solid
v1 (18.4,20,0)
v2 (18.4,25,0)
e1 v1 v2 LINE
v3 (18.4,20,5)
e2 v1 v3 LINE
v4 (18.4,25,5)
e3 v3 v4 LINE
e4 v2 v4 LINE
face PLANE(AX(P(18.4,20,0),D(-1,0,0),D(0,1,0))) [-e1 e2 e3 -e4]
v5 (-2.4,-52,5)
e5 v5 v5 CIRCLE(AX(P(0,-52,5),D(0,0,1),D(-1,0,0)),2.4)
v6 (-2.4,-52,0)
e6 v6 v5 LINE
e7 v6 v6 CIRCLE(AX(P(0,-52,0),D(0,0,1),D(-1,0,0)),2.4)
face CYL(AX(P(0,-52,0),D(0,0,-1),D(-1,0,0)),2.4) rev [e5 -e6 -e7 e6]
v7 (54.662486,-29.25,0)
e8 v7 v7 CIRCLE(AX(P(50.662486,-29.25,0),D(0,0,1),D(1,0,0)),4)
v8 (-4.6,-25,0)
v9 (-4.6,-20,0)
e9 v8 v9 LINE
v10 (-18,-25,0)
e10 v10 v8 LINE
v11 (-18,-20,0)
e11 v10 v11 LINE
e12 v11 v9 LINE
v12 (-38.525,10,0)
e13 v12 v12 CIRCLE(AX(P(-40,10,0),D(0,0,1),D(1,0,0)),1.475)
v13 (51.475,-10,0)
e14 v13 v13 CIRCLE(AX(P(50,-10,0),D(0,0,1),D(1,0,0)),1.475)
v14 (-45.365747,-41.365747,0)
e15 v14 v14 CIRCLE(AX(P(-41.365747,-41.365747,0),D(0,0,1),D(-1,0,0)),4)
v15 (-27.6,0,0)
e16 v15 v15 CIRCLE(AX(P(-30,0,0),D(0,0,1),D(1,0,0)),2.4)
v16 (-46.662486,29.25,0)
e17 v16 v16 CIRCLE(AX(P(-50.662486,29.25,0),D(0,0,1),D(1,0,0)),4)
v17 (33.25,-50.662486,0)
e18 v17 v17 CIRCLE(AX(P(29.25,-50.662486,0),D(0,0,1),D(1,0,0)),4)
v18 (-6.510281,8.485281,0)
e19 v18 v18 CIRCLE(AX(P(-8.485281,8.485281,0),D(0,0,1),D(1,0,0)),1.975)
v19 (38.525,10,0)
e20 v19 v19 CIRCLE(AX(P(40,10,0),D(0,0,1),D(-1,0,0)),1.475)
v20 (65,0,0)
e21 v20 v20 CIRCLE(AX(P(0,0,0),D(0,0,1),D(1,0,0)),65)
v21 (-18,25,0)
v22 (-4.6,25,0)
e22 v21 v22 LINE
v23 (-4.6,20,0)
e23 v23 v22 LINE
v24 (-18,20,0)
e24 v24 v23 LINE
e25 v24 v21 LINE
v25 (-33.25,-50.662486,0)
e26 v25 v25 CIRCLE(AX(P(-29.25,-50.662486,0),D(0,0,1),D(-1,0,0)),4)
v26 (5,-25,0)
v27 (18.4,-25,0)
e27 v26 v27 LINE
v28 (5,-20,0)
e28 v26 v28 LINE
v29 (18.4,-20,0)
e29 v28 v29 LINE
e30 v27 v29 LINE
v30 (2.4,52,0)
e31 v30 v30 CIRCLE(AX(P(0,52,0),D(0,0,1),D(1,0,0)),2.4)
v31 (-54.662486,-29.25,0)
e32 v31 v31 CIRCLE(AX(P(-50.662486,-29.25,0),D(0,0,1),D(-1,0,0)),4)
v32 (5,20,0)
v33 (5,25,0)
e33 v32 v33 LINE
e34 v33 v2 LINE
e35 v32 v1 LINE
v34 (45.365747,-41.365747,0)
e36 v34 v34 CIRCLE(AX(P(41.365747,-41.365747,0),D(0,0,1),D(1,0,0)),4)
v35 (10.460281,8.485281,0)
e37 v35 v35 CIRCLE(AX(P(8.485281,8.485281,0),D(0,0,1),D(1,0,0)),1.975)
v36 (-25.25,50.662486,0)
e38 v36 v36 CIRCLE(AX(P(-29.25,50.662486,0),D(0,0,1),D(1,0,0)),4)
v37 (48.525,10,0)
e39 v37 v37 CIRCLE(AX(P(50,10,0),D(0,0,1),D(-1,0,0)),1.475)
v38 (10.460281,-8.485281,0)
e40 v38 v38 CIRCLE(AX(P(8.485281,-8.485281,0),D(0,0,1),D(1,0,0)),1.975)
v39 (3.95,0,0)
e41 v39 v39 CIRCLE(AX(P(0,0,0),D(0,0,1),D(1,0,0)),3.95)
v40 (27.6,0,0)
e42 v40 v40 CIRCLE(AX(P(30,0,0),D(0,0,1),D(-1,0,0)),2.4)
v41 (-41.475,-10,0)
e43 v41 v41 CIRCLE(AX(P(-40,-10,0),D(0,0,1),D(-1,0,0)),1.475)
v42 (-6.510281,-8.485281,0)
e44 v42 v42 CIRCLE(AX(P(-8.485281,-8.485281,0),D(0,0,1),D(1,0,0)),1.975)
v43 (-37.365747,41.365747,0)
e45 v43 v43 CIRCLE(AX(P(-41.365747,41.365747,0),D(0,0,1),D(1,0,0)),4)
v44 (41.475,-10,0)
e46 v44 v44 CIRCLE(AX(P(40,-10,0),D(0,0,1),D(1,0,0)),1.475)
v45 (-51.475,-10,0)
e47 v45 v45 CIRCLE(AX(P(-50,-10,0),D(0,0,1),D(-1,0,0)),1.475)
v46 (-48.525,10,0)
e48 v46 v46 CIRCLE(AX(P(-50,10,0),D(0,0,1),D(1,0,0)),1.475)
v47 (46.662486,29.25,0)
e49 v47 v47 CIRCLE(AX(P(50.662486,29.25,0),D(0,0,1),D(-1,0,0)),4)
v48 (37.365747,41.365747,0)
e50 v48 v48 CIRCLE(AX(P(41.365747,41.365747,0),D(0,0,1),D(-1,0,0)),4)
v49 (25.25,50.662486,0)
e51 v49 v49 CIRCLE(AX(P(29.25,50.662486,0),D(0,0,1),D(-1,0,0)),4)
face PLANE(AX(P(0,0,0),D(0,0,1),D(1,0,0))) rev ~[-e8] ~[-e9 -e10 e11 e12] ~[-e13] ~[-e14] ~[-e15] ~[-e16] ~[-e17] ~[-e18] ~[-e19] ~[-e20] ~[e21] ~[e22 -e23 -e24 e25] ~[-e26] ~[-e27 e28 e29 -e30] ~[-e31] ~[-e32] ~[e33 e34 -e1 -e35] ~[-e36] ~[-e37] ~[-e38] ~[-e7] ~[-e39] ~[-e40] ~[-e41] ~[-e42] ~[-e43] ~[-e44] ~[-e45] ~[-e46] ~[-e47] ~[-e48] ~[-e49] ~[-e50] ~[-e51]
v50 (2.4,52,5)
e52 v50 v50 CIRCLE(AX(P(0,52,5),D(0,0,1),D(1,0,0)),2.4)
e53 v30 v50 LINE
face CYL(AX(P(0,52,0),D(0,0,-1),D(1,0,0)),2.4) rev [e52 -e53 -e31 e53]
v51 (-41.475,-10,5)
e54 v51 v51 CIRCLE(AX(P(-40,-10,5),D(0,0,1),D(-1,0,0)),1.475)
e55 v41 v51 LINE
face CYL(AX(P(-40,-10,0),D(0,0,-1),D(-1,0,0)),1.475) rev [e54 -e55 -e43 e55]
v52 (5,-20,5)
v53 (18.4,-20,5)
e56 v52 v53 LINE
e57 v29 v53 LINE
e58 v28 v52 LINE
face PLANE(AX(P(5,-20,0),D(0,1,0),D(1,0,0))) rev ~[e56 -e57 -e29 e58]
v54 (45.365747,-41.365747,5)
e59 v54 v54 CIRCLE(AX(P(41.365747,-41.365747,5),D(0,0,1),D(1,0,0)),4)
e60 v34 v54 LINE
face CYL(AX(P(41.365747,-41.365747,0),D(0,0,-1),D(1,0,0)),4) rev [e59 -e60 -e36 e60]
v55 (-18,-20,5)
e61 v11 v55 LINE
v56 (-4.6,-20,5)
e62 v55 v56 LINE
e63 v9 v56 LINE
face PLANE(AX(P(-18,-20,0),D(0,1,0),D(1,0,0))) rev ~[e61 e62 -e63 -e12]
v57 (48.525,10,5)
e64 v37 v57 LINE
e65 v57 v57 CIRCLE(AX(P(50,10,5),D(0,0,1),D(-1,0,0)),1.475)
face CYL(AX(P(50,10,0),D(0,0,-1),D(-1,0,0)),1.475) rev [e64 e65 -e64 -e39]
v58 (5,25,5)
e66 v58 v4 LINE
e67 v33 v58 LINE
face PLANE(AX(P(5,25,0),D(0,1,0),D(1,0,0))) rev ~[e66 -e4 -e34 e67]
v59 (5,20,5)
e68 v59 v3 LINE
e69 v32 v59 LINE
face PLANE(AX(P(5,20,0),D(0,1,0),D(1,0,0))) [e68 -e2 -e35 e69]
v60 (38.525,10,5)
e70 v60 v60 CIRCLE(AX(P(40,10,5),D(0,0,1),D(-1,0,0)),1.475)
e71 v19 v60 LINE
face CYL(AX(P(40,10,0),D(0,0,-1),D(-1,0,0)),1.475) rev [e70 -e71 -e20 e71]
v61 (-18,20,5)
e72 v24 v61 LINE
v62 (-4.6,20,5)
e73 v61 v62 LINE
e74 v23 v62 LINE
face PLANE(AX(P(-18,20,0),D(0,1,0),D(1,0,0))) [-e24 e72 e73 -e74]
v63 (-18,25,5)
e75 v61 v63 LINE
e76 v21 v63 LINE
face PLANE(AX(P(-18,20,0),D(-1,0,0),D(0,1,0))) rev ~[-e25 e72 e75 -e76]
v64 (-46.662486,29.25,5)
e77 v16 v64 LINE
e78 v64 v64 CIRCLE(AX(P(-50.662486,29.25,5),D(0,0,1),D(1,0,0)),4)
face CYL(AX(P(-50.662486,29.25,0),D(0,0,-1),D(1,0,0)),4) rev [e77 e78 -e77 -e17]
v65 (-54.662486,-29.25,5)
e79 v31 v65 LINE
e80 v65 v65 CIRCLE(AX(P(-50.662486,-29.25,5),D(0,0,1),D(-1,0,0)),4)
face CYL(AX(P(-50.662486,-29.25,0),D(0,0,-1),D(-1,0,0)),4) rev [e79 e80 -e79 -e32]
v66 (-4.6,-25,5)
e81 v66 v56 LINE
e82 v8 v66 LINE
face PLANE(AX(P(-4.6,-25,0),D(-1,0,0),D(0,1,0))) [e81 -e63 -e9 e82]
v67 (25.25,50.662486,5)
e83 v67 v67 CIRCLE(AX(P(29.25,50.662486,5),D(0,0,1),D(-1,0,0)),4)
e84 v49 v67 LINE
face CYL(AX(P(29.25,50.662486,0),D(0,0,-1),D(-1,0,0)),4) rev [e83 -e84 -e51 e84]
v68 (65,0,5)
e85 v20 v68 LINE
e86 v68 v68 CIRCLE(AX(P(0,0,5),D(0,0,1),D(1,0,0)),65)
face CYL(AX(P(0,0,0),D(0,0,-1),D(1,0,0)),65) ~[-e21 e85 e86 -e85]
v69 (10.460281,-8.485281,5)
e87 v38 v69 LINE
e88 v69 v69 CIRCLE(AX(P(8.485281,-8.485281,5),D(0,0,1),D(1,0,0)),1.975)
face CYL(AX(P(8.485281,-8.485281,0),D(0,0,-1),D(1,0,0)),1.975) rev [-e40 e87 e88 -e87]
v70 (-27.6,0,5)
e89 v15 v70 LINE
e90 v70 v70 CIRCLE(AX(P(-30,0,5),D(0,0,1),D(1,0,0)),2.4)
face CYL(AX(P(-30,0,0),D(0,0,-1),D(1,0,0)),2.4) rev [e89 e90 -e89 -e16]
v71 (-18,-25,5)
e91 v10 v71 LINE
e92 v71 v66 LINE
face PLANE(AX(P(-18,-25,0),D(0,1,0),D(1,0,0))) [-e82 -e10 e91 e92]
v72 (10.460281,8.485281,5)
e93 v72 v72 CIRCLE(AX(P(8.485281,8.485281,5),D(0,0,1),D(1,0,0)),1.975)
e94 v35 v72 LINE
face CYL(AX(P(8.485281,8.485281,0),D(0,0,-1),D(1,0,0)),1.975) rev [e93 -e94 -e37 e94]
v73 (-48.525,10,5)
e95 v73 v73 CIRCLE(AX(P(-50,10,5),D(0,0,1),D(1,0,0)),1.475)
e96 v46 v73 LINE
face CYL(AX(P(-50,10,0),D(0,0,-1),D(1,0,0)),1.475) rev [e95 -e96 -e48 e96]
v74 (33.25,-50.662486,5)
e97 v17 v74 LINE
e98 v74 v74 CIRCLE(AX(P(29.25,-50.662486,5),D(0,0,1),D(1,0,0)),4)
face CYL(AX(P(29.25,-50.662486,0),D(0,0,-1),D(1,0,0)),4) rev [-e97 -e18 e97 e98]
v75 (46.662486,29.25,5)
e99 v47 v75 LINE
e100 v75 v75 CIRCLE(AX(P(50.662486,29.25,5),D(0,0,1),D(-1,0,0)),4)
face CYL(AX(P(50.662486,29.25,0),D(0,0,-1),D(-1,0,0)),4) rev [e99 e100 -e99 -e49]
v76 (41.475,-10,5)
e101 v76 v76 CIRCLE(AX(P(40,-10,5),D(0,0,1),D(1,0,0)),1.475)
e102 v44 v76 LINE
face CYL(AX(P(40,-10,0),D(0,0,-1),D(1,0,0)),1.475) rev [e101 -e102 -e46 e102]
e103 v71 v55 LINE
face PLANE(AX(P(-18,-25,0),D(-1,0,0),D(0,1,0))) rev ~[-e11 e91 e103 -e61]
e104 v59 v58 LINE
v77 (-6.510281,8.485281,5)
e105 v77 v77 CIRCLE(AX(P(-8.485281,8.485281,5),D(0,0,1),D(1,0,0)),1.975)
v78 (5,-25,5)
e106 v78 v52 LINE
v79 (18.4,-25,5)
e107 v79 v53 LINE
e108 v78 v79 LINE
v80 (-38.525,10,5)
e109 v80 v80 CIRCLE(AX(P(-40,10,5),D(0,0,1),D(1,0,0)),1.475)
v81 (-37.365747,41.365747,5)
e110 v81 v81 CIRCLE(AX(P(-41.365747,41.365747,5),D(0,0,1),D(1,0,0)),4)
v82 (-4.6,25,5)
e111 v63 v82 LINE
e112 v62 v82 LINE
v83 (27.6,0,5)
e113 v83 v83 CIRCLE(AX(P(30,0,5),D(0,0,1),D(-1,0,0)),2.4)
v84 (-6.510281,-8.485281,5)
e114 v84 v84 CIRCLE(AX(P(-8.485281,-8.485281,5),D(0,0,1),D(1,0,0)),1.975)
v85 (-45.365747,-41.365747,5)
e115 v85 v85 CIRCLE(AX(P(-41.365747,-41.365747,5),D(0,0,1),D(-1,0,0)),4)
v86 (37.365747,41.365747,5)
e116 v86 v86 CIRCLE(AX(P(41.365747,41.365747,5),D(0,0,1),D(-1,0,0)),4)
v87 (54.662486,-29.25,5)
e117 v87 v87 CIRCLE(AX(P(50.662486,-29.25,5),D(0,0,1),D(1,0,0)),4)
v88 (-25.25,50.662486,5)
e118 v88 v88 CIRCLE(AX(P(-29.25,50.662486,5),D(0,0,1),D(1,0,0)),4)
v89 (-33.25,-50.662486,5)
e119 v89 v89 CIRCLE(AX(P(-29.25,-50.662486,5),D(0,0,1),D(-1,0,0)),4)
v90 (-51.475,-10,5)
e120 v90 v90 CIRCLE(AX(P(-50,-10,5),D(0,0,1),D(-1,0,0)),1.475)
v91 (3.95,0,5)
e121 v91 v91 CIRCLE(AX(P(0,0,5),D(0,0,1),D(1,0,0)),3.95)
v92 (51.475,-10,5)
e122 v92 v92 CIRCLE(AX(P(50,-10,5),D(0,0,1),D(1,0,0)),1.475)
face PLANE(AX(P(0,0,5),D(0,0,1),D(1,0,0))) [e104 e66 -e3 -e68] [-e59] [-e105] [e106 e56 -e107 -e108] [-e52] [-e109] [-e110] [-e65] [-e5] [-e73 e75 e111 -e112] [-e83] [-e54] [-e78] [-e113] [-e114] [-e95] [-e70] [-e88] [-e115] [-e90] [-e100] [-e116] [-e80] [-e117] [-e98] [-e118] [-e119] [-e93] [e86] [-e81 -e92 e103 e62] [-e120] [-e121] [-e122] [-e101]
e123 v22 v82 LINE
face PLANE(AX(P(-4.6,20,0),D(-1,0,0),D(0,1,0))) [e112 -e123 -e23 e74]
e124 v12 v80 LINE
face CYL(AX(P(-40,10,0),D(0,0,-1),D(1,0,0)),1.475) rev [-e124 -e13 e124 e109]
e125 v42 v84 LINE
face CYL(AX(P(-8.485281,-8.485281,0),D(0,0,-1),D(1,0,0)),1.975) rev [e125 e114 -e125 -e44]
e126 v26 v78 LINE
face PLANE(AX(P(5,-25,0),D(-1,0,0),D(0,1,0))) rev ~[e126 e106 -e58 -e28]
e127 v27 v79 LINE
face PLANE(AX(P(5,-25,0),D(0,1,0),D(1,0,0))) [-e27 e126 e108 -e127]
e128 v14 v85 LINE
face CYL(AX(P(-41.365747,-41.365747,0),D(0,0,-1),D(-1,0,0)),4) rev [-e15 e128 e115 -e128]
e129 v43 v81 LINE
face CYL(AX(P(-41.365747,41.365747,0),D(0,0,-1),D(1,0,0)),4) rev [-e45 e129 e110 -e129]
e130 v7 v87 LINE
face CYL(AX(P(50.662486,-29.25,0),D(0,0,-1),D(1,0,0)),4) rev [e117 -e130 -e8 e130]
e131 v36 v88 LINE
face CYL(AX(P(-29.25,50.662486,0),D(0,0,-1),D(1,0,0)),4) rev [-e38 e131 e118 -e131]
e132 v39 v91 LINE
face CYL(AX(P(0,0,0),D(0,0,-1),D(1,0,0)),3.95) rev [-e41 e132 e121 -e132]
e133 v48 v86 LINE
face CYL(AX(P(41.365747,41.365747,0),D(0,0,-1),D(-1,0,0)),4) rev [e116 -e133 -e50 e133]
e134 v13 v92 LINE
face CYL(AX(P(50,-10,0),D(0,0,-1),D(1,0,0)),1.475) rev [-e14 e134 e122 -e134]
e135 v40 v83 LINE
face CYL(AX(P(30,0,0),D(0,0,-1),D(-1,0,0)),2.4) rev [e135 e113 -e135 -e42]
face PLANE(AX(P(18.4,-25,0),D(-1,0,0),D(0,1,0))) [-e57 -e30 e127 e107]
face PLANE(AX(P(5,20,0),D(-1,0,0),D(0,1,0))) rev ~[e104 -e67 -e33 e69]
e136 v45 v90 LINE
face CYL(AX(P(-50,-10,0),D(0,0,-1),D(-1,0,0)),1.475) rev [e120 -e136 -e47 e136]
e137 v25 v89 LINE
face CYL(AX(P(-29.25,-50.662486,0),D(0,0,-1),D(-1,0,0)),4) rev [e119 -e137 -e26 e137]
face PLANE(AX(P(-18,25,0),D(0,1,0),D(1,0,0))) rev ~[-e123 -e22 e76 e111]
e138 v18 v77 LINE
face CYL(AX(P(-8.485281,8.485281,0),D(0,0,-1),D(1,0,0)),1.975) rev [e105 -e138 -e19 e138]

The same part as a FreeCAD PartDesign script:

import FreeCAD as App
import Part
import Sketcher

doc = App.newDocument("Part")
params = doc.addObject("Spreadsheet::Sheet", "Params")
for row, (alias, value) in enumerate([
    ("sketch1_diameter", "130 mm"),
    ("sketch1_diameter2", "8 mm"),
    ("sketch1_diameter3", "4.8 mm"),
    ("sketch1_diameter4", "7.9 mm"),
    ("sketch1_diameter5", "2.95 mm"),
    ("pad1_length", "5 mm"),
], start=1):
    params.set(f"A{row}", alias)
    params.set(f"B{row}", "=" + value)
    params.setAlias(f"B{row}", alias)

body = doc.addObject("PartDesign::Body", "Body")

# Sketch on XY plane
sketch1 = body.newObject("Sketcher::SketchObject", "Sketch")
sketch1.AttachmentSupport = (doc.getObject("XY_Plane"), [""])
sketch1.MapMode = "FlatFace"
sketch1.addGeometry([
    Part.Circle(App.Vector(0, 0, 0), App.Vector(0, 0, 1), 65),  # 0
    Part.Circle(App.Vector(-41.4, -41.4, 0), App.Vector(0, 0, 1), 4),  # 1
    Part.Circle(App.Vector(-29.2, -50.7, 0), App.Vector(0, 0, 1), 4),  # 2
    Part.Circle(App.Vector(-50.7, -29.2, 0), App.Vector(0, 0, 1), 4),  # 3
    Part.Circle(App.Vector(-50, -10, 0), App.Vector(0, 0, 1), 1.5),  # 4
    Part.Circle(App.Vector(-40, -10, 0), App.Vector(0, 0, 1), 1.5),  # 5
    Part.LineSegment(App.Vector(-4.6, -25, 0), App.Vector(-18, -25, 0)),  # 6
    Part.LineSegment(App.Vector(-18, -25, 0), App.Vector(-18, -20, 0)),  # 7
    Part.LineSegment(App.Vector(-18, -20, 0), App.Vector(-4.6, -20, 0)),  # 8
    Part.LineSegment(App.Vector(-4.6, -20, 0), App.Vector(-4.6, -25, 0)),  # 9
    Part.Circle(App.Vector(-8.5, -8.5, 0), App.Vector(0, 0, 1), 2),  # 10
    Part.Circle(App.Vector(0, -52, 0), App.Vector(0, 0, 1), 2.4),  # 11
    Part.Circle(App.Vector(29.2, -50.7, 0), App.Vector(0, 0, 1), 4),  # 12
    Part.Circle(App.Vector(41.4, -41.4, 0), App.Vector(0, 0, 1), 4),  # 13
    Part.Circle(App.Vector(50.7, -29.2, 0), App.Vector(0, 0, 1), 4),  # 14
    Part.LineSegment(App.Vector(18.4, -25, 0), App.Vector(5, -25, 0)),  # 15
    Part.LineSegment(App.Vector(5, -25, 0), App.Vector(5, -20, 0)),  # 16
    Part.LineSegment(App.Vector(5, -20, 0), App.Vector(18.4, -20, 0)),  # 17
    Part.LineSegment(App.Vector(18.4, -20, 0), App.Vector(18.4, -25, 0)),  # 18
    Part.Circle(App.Vector(8.5, -8.5, 0), App.Vector(0, 0, 1), 2),  # 19
    Part.Circle(App.Vector(40, -10, 0), App.Vector(0, 0, 1), 1.5),  # 20
    Part.Circle(App.Vector(50, -10, 0), App.Vector(0, 0, 1), 1.5),  # 21
    Part.Circle(App.Vector(-50, 10, 0), App.Vector(0, 0, 1), 1.5),  # 22
    Part.Circle(App.Vector(-30, 0, 0), App.Vector(0, 0, 1), 2.4),  # 23
    Part.Circle(App.Vector(-40, 10, 0), App.Vector(0, 0, 1), 1.5),  # 24
    Part.Circle(App.Vector(-8.5, 8.5, 0), App.Vector(0, 0, 1), 2),  # 25
    Part.LineSegment(App.Vector(-4.6, 20, 0), App.Vector(-18, 20, 0)),  # 26
    Part.LineSegment(App.Vector(-18, 20, 0), App.Vector(-18, 25, 0)),  # 27
    Part.LineSegment(App.Vector(-18, 25, 0), App.Vector(-4.6, 25, 0)),  # 28
    Part.LineSegment(App.Vector(-4.6, 25, 0), App.Vector(-4.6, 20, 0)),  # 29
    Part.Circle(App.Vector(-50.7, 29.2, 0), App.Vector(0, 0, 1), 4),  # 30
    Part.Circle(App.Vector(-41.4, 41.4, 0), App.Vector(0, 0, 1), 4),  # 31
    Part.Circle(App.Vector(-29.2, 50.7, 0), App.Vector(0, 0, 1), 4),  # 32
    Part.Circle(App.Vector(0, 0, 0), App.Vector(0, 0, 1), 4),  # 33
    Part.Circle(App.Vector(8.5, 8.5, 0), App.Vector(0, 0, 1), 2),  # 34
    Part.LineSegment(App.Vector(18.4, 20, 0), App.Vector(5, 20, 0)),  # 35
    Part.LineSegment(App.Vector(5, 20, 0), App.Vector(5, 25, 0)),  # 36
    Part.LineSegment(App.Vector(5, 25, 0), App.Vector(18.4, 25, 0)),  # 37
    Part.LineSegment(App.Vector(18.4, 25, 0), App.Vector(18.4, 20, 0)),  # 38
    Part.Circle(App.Vector(30, 0, 0), App.Vector(0, 0, 1), 2.4),  # 39
    Part.Circle(App.Vector(40, 10, 0), App.Vector(0, 0, 1), 1.5),  # 40
    Part.Circle(App.Vector(50, 10, 0), App.Vector(0, 0, 1), 1.5),  # 41
    Part.Circle(App.Vector(0, 52, 0), App.Vector(0, 0, 1), 2.4),  # 42
    Part.Circle(App.Vector(50.7, 29.2, 0), App.Vector(0, 0, 1), 4),  # 43
    Part.Circle(App.Vector(29.2, 50.7, 0), App.Vector(0, 0, 1), 4),  # 44
    Part.Circle(App.Vector(41.4, 41.4, 0), App.Vector(0, 0, 1), 4),  # 45
], False)
sketch1.addConstraint([
    Sketcher.Constraint("Coincident", 6, 2, 7, 1),
    Sketcher.Constraint("Coincident", 7, 2, 8, 1),
    Sketcher.Constraint("Coincident", 8, 2, 9, 1),
    Sketcher.Constraint("Coincident", 9, 2, 6, 1),
    Sketcher.Constraint("Coincident", 15, 2, 16, 1),
    Sketcher.Constraint("Coincident", 16, 2, 17, 1),
    Sketcher.Constraint("Coincident", 17, 2, 18, 1),
    Sketcher.Constraint("Coincident", 18, 2, 15, 1),
    Sketcher.Constraint("Coincident", 26, 2, 27, 1),
    Sketcher.Constraint("Coincident", 27, 2, 28, 1),
    Sketcher.Constraint("Coincident", 28, 2, 29, 1),
    Sketcher.Constraint("Coincident", 29, 2, 26, 1),
    Sketcher.Constraint("Coincident", 35, 2, 36, 1),
    Sketcher.Constraint("Coincident", 36, 2, 37, 1),
    Sketcher.Constraint("Coincident", 37, 2, 38, 1),
    Sketcher.Constraint("Coincident", 38, 2, 35, 1),
    Sketcher.Constraint("Horizontal", 6),
    Sketcher.Constraint("Vertical", 7),
    Sketcher.Constraint("Horizontal", 8),
    Sketcher.Constraint("Vertical", 9),
    Sketcher.Constraint("Horizontal", 15),
    Sketcher.Constraint("Vertical", 16),
    Sketcher.Constraint("Horizontal", 17),
    Sketcher.Constraint("Vertical", 18),
    Sketcher.Constraint("Horizontal", 26),
    Sketcher.Constraint("Vertical", 27),
    Sketcher.Constraint("Horizontal", 28),
    Sketcher.Constraint("Vertical", 29),
    Sketcher.Constraint("Horizontal", 35),
    Sketcher.Constraint("Vertical", 36),
    Sketcher.Constraint("Horizontal", 37),
    Sketcher.Constraint("Vertical", 38),
    Sketcher.Constraint("Coincident", 0, 3, -1, 1),
    Sketcher.Constraint("Coincident", 33, 3, -1, 1),
    Sketcher.Constraint("Equal", 1, 2),
    Sketcher.Constraint("Equal", 2, 3),
    Sketcher.Constraint("Equal", 4, 5),
    Sketcher.Constraint("Equal", 3, 12),
    Sketcher.Constraint("Equal", 12, 13),
    Sketcher.Constraint("Equal", 13, 14),
    Sketcher.Constraint("Equal", 10, 19),
    Sketcher.Constraint("Equal", 5, 20),
    Sketcher.Constraint("Equal", 20, 21),
    Sketcher.Constraint("Equal", 21, 22),
    Sketcher.Constraint("Equal", 11, 23),
    Sketcher.Constraint("Equal", 22, 24),
    Sketcher.Constraint("Equal", 19, 25),
    Sketcher.Constraint("Equal", 14, 30),
    Sketcher.Constraint("Equal", 30, 31),
    Sketcher.Constraint("Equal", 31, 32),
    Sketcher.Constraint("Equal", 25, 34),
    Sketcher.Constraint("Equal", 23, 39),
    Sketcher.Constraint("Equal", 24, 40),
    Sketcher.Constraint("Equal", 40, 41),
    Sketcher.Constraint("Equal", 39, 42),
    Sketcher.Constraint("Equal", 32, 43),
    Sketcher.Constraint("Equal", 43, 44),
    Sketcher.Constraint("Equal", 44, 45),
    Sketcher.Constraint("Symmetric", 21, 3, 22, 3, -1, 1),
    Sketcher.Constraint("Symmetric", 20, 3, 24, 3, -1, 1),
    Sketcher.Constraint("Symmetric", 19, 3, 25, 3, -1, 1),
    Sketcher.Constraint("Symmetric", 14, 3, 30, 3, -1, 1),
    Sketcher.Constraint("Symmetric", 13, 3, 31, 3, -1, 1),
    Sketcher.Constraint("Symmetric", 12, 3, 32, 3, -1, 1),
    Sketcher.Constraint("Symmetric", 10, 3, 34, 3, -1, 1),
    Sketcher.Constraint("Symmetric", 23, 3, 39, 3, -1, 1),
    Sketcher.Constraint("Symmetric", 5, 3, 40, 3, -1, 1),
    Sketcher.Constraint("Symmetric", 4, 3, 41, 3, -1, 1),
    Sketcher.Constraint("Symmetric", 11, 3, 42, 3, -1, 1),
    Sketcher.Constraint("Symmetric", 3, 3, 43, 3, -1, 1),
    Sketcher.Constraint("Symmetric", 2, 3, 44, 3, -1, 1),
    Sketcher.Constraint("Symmetric", 1, 3, 45, 3, -1, 1),
    Sketcher.Constraint("Symmetric", 2, 3, 12, 3, -2),
    Sketcher.Constraint("Symmetric", 1, 3, 13, 3, -2),
    Sketcher.Constraint("Symmetric", 3, 3, 14, 3, -2),
    Sketcher.Constraint("Symmetric", 10, 3, 19, 3, -2),
    Sketcher.Constraint("Symmetric", 5, 3, 20, 3, -2),
    Sketcher.Constraint("Symmetric", 4, 3, 21, 3, -2),
    Sketcher.Constraint("Symmetric", 7, 2, 26, 2, -1),
    Sketcher.Constraint("Symmetric", 9, 2, 28, 2, -1),
    Sketcher.Constraint("Symmetric", 16, 2, 35, 2, -1),
    Sketcher.Constraint("Symmetric", 18, 2, 37, 2, -1),
    Sketcher.Constraint("PointOnObject", 11, 3, -2),
    Sketcher.Constraint("PointOnObject", 23, 3, -1),
    Sketcher.Constraint("Horizontal", 4, 3, 5, 3),
    Sketcher.Constraint("Horizontal", 9, 2, 15, 2),
    Sketcher.Constraint("Horizontal", 8, 2, 16, 2),
    Sketcher.Constraint("Equal", 8, 15),
    Sketcher.Constraint("Diameter", 0, 130.0),
    Sketcher.Constraint("Diameter", 1, 8.0),
    Sketcher.Constraint("Diameter", 11, 4.8),
    Sketcher.Constraint("Diameter", 33, 7.9),
    Sketcher.Constraint("Diameter", 4, 2.95),
    Sketcher.Constraint("Diameter", 10, 3.95),
    Sketcher.Constraint("DistanceY", 7, 1, 7, 2, 5.0),
    Sketcher.Constraint("DistanceX", 6, 2, 6, 1, 13.4),
    Sketcher.Constraint("DistanceX", 4, 3, -1, 1, 50.0),
    Sketcher.Constraint("DistanceY", 4, 3, -1, 1, 10.0),
    Sketcher.Constraint("DistanceX", 5, 3, -1, 1, 40.0),
    Sketcher.Constraint("DistanceY", 11, 3, -1, 1, 52.0),
    Sketcher.Constraint("DistanceX", 23, 3, -1, 1, 30.0),
    Sketcher.Constraint("DistanceX", 6, 2, -1, 1, 18.0),
    Sketcher.Constraint("DistanceY", 6, 2, -1, 1, 25.0),
    Sketcher.Constraint("DistanceX", -1, 1, 15, 2, 5.0),
    Sketcher.Constraint("DistanceX", 2, 3, 12, 3, 58.5),
    Sketcher.Constraint("DistanceY", 3, 3, -1, 1, 29.25),
    Sketcher.Constraint("DistanceX", 10, 3, -1, 1, 8.485281),
    Sketcher.Constraint("DistanceY", 10, 3, -1, 1, 8.485281),
    Sketcher.Constraint("DistanceY", 2, 3, 1, 3, 9.296739),
    Sketcher.Constraint("DistanceX", 3, 3, 1, 3, 9.296739),
    Sketcher.Constraint("DistanceX", 10, 3, 13, 3, 49.851028),
    Sketcher.Constraint("DistanceY", 1, 3, -1, 1, 41.365747),
])
sketch1.setExpression("Constraints[88]", "Params.sketch1_diameter")
sketch1.setExpression("Constraints[89]", "Params.sketch1_diameter2")
sketch1.setExpression("Constraints[90]", "Params.sketch1_diameter3")
sketch1.setExpression("Constraints[91]", "Params.sketch1_diameter4")
sketch1.setExpression("Constraints[92]", "Params.sketch1_diameter5")
pad1 = body.newObject("PartDesign::Pad", "Pad")
pad1.Profile = sketch1
pad1.setExpression("Length", "Params.pad1_length")

doc.recompute()
